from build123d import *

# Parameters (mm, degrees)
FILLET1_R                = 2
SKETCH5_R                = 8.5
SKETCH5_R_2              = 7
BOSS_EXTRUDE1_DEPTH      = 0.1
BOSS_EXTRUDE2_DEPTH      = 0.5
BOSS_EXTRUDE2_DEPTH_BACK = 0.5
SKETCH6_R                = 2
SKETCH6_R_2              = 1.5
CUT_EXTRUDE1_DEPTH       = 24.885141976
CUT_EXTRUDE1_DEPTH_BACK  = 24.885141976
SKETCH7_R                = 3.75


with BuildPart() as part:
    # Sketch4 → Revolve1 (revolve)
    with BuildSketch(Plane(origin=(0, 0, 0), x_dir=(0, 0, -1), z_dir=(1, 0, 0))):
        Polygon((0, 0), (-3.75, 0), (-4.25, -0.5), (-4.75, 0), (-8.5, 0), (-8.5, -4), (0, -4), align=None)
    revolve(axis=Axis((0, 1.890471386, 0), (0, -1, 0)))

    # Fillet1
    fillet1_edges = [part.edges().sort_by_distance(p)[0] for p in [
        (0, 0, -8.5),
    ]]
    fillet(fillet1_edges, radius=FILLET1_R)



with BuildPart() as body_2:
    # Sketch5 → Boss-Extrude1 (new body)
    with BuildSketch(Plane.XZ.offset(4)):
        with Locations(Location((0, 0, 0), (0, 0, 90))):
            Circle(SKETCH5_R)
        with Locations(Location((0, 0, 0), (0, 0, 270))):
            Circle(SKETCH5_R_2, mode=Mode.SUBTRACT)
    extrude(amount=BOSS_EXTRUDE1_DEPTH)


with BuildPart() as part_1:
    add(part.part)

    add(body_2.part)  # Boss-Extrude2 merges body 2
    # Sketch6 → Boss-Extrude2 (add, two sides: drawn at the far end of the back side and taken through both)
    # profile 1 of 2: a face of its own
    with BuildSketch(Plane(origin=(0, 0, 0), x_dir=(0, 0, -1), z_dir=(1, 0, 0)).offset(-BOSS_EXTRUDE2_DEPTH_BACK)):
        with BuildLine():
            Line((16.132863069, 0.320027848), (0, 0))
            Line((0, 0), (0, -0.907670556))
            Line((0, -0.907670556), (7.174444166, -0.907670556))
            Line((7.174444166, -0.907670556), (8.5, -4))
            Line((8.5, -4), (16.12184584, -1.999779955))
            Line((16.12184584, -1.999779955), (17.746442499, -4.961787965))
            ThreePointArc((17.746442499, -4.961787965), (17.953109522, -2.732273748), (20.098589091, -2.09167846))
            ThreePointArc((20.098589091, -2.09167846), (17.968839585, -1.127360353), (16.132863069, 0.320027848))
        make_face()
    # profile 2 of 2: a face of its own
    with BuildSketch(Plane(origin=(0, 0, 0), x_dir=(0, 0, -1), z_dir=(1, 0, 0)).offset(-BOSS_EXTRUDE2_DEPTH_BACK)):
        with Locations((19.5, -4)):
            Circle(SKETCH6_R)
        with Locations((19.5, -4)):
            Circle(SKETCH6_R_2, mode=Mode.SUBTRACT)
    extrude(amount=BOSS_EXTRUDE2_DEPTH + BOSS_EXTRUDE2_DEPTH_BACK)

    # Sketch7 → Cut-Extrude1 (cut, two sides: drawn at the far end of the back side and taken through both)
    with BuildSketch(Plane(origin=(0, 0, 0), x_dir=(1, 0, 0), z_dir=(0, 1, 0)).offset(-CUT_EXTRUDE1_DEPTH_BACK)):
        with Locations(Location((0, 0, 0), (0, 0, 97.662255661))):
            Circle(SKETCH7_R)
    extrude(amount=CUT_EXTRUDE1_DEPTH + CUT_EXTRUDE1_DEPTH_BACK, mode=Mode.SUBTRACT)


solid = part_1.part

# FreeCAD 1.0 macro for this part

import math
import FreeCAD as App
import Part
import Sketcher
from FreeCAD import Vector
Q = App.Units.Quantity


def edges_at(feature, points):
    """Names of the edges that pass closest to the given points."""
    edges = feature.Shape.Edges
    near = lambda p: min(range(len(edges)), key=lambda i: edges[i].distToShape(Part.Vertex(*p))[0])
    return sorted({f"Edge{near(p) + 1}" for p in points})

doc = App.newDocument("Part")
params = doc.addObject("Spreadsheet::Sheet", "Params")
for row, (alias, value) in enumerate([
    ("sketch1_width", "4 mm"),
    ("sketch1_height", "8.5 mm"),
    ("revolution_angle", "360 deg"),
    ("fillet_radius", "2 mm"),
    ("sketch2_diameter", "17 mm"),
    ("sketch2_diameter2", "14 mm"),
    ("pad1_length", "0.1 mm"),
    ("sketch3_diameter", "3 mm"),
    ("sketch3_radius", "2 mm"),
    ("pad2_length", "0.5 mm"),
    ("pad2_length2", "0.5 mm"),
    ("sketch4_diameter", "7.5 mm"),
], start=1):
    params.set(f"A{row}", alias)
    params.set(f"B{row}", "=" + value)
    params.setAlias(f"B{row}", alias)

body = doc.addObject("PartDesign::Body", "Body")

# Sketch on YZ plane
sketch1 = body.newObject("Sketcher::SketchObject", "Sketch")
sketch1.AttachmentSupport = (doc.getObject("YZ_Plane"), [""])
sketch1.MapMode = "FlatFace"
sketch1.addGeometry(Part.LineSegment(Vector(0, 0, 0), Vector(0, 3.75, 0)), False)
sketch1.addGeometry(Part.LineSegment(Vector(0, 3.75, 0), Vector(-0.5, 4.25, 0)), False)
sketch1.addGeometry(Part.LineSegment(Vector(-0.5, 4.25, 0), Vector(0, 4.75, 0)), False)
sketch1.addGeometry(Part.LineSegment(Vector(0, 4.75, 0), Vector(0, 8.5, 0)), False)
sketch1.addGeometry(Part.LineSegment(Vector(0, 8.5, 0), Vector(-4, 8.5, 0)), False)
sketch1.addGeometry(Part.LineSegment(Vector(-4, 8.5, 0), Vector(-4, 0, 0)), False)
sketch1.addGeometry(Part.LineSegment(Vector(-4, 0, 0), Vector(0, 0, 0)), False)
sketch1.addConstraint(Sketcher.Constraint("Coincident", 0, 2, 1, 1))
sketch1.addConstraint(Sketcher.Constraint("Coincident", 1, 2, 2, 1))
sketch1.addConstraint(Sketcher.Constraint("Coincident", 2, 2, 3, 1))
sketch1.addConstraint(Sketcher.Constraint("Coincident", 3, 2, 4, 1))
sketch1.addConstraint(Sketcher.Constraint("Coincident", 4, 2, 5, 1))
sketch1.addConstraint(Sketcher.Constraint("Coincident", 5, 2, 6, 1))
sketch1.addConstraint(Sketcher.Constraint("Coincident", 6, 2, 0, 1))
sketch1.addConstraint(Sketcher.Constraint("Vertical", 0))
sketch1.addConstraint(Sketcher.Constraint("Vertical", 3))
sketch1.addConstraint(Sketcher.Constraint("Horizontal", 4))
sketch1.addConstraint(Sketcher.Constraint("Vertical", 5))
sketch1.addConstraint(Sketcher.Constraint("Horizontal", 6))
sketch1.addConstraint(Sketcher.Constraint("Coincident", 6, 2, -1, 1))
sketch1.addConstraint(Sketcher.Constraint("PointOnObject", 2, 2, -2))
sketch1.addConstraint(Sketcher.Constraint("Perpendicular", 1, 2))
sketch1.addConstraint(Sketcher.Constraint("Equal", 0, 3))
sketch1.addConstraint(Sketcher.Constraint("Equal", 1, 2))
sketch1.addConstraint(Sketcher.Constraint("DistanceX", 4, 2, 4, 1, Q("4 mm")))
sketch1.addConstraint(Sketcher.Constraint("DistanceY", 5, 2, 5, 1, Q("8.5 mm")))
sketch1.addConstraint(Sketcher.Constraint("DistanceY", 0, 2, 2, 2, Q("1 mm")))
sketch1.setExpression("Constraints[17]", "Params.sketch1_width")
sketch1.setExpression("Constraints[18]", "Params.sketch1_height")
revolution = body.newObject("PartDesign::Revolution", "Revolution")
revolution.Profile = sketch1
revolution.ReferenceAxis = (sketch1, ["H_Axis"])
revolution.setExpression("Angle", "Params.revolution_angle")
doc.recompute()

fillet = body.newObject("PartDesign::Fillet", "Fillet")
fillet.Base = (revolution, edges_at(revolution, [(0, 0, -8.5)]))
fillet.setExpression("Radius", "Params.fillet_radius")
body2 = doc.addObject("PartDesign::Body", "Body001")

# Sketch on XZ plane
sketch2 = body2.newObject("Sketcher::SketchObject", "Sketch001")
sketch2.AttachmentSupport = (doc.getObject("XZ_Plane001"), [""])
sketch2.MapMode = "FlatFace"
sketch2.AttachmentOffset = App.Placement(Vector(0, 0, 4), App.Rotation())
sketch2.addGeometry(Part.Circle(Vector(0, 0, 0), Vector(0, 0, 1), 8.5), False)
sketch2.addGeometry(Part.Circle(Vector(0, 0, 0), Vector(0, 0, 1), 7), False)
sketch2.addConstraint(Sketcher.Constraint("Coincident", 0, 3, -1, 1))
sketch2.addConstraint(Sketcher.Constraint("Coincident", 1, 3, -1, 1))
sketch2.addConstraint(Sketcher.Constraint("Diameter", 0, Q("17 mm")))
sketch2.addConstraint(Sketcher.Constraint("Diameter", 1, Q("14 mm")))
sketch2.setExpression("Constraints[2]", "Params.sketch2_diameter")
sketch2.setExpression("Constraints[3]", "Params.sketch2_diameter2")
pad1 = body2.newObject("PartDesign::Pad", "Pad")
pad1.Profile = sketch2
pad1.setExpression("Length", "Params.pad1_length")
doc.recompute()

boolean = body.newObject("PartDesign::Boolean", "Boolean")
boolean.Type = "Fuse"
boolean.addObjects([body2])

# Sketch on YZ plane
sketch3 = body.newObject("Sketcher::SketchObject", "Sketch002")
sketch3.AttachmentSupport = (doc.getObject("YZ_Plane"), [""])
sketch3.MapMode = "FlatFace"
sketch3.addGeometry(Part.LineSegment(Vector(0.320028, -16.132863, 0), Vector(0, 0, 0)), False)
sketch3.addGeometry(Part.LineSegment(Vector(0, 0, 0), Vector(-0.907671, 0, 0)), False)
sketch3.addGeometry(Part.LineSegment(Vector(-0.907671, 0, 0), Vector(-0.907671, -7.174444, 0)), False)
sketch3.addGeometry(Part.LineSegment(Vector(-0.907671, -7.174444, 0), Vector(-4, -8.5, 0)), False)
sketch3.addGeometry(Part.LineSegment(Vector(-4, -8.5, 0), Vector(-1.99978, -16.121846, 0)), False)
sketch3.addGeometry(Part.LineSegment(Vector(-1.99978, -16.121846, 0), Vector(-4.961788, -17.746442, 0)), False)
sketch3.addGeometry(Part.ArcOfCircle(Part.Circle(Vector(-4, -19.5, 0), Vector(0, 0, 1), 2), math.radians(118.743806), math.radians(342.584763)), False)
sketch3.addGeometry(Part.ArcOfCircle(Part.Circle(Vector(7.132486, -22.991961, 0), Vector(0, 0, 1), 9.667307), math.radians(134.80454), math.radians(162.584763)), False)
sketch3.addGeometry(Part.Circle(Vector(-4, -19.5, 0), Vector(0, 0, 1), 1.5), False)
sketch3.addConstraint(Sketcher.Constraint("Coincident", 0, 2, 1, 1))
sketch3.addConstraint(Sketcher.Constraint("Coincident", 1, 2, 2, 1))
sketch3.addConstraint(Sketcher.Constraint("Coincident", 2, 2, 3, 1))
sketch3.addConstraint(Sketcher.Constraint("Coincident", 3, 2, 4, 1))
sketch3.addConstraint(Sketcher.Constraint("Coincident", 4, 2, 5, 1))
sketch3.addConstraint(Sketcher.Constraint("Coincident", 5, 2, 6, 1))
sketch3.addConstraint(Sketcher.Constraint("Coincident", 6, 2, 7, 2))
sketch3.addConstraint(Sketcher.Constraint("Coincident", 7, 1, 0, 1))
sketch3.addConstraint(Sketcher.Constraint("Horizontal", 1))
sketch3.addConstraint(Sketcher.Constraint("Vertical", 2))
sketch3.addConstraint(Sketcher.Constraint("Coincident", 0, 2, -1, 1))
sketch3.addConstraint(Sketcher.Constraint("Coincident", 8, 3, 6, 3))
sketch3.addConstraint(Sketcher.Constraint("Diameter", 8, Q("3 mm")))
sketch3.addConstraint(Sketcher.Constraint("Radius", 6, Q("2 mm")))
sketch3.addConstraint(Sketcher.Constraint("DistanceX", 6, 3, -1, 1, Q("4 mm")))
sketch3.addConstraint(Sketcher.Constraint("DistanceX", 3, 2, -1, 1, Q("4 mm")))
sketch3.addConstraint(Sketcher.Constraint("DistanceY", 6, 3, 3, 2, Q("11 mm")))
sketch3.addConstraint(Sketcher.Constraint("DistanceY", 6, 3, -1, 1, Q("19.5 mm")))
sketch3.addConstraint(Sketcher.Constraint("Radius", 7, Q("9.667307 mm")))
sketch3.addConstraint(Sketcher.Constraint("DistanceY", 5, 2, 2, 2, Q("10.571998 mm")))
sketch3.addConstraint(Sketcher.Constraint("DistanceX", 1, 2, 1, 1, Q("0.907671 mm")))
sketch3.addConstraint(Sketcher.Constraint("DistanceY", 4, 2, 2, 2, Q("8.947402 mm")))
sketch3.addConstraint(Sketcher.Constraint("DistanceX", 6, 2, 4, 2, Q("0.091899 mm")))
sketch3.addConstraint(Sketcher.Constraint("Distance", 3, Q("3.364461 mm")))
sketch3.addConstraint(Sketcher.Constraint("DistanceY", 7, 3, -1, 1, Q("22.991961 mm")))
sketch3.addConstraint(Sketcher.Constraint("DistanceX", 4, 2, -1, 1, Q("1.99978 mm")))
sketch3.addConstraint(Sketcher.Constraint("DistanceY", 5, 2, 7, 1, Q("1.613579 mm")))
sketch3.setExpression("Constraints[12]", "Params.sketch3_diameter")
sketch3.setExpression("Constraints[13]", "Params.sketch3_radius")
pad2 = body.newObject("PartDesign::Pad", "Pad001")
pad2.Profile = sketch3
pad2.Type = "TwoLengths"
pad2.setExpression("Length", "Params.pad2_length")
pad2.setExpression("Length2", "Params.pad2_length2")

# Sketch on XZ plane
sketch4 = body.newObject("Sketcher::SketchObject", "Sketch003")
sketch4.AttachmentSupport = (doc.getObject("XZ_Plane"), [""])
sketch4.MapMode = "FlatFace"
sketch4.addGeometry(Part.Circle(Vector(0, 0, 0), Vector(0, 0, 1), 3.75), False)
sketch4.addConstraint(Sketcher.Constraint("Coincident", 0, 3, -1, 1))
sketch4.addConstraint(Sketcher.Constraint("Diameter", 0, Q("7.5 mm")))
sketch4.setExpression("Constraints[1]", "Params.sketch4_diameter")
pocket1 = body.newObject("PartDesign::Pocket", "Pocket")
pocket1.Profile = sketch4
pocket1.Type = "ThroughAll"
pocket1.Midplane = True

doc.recompute()
